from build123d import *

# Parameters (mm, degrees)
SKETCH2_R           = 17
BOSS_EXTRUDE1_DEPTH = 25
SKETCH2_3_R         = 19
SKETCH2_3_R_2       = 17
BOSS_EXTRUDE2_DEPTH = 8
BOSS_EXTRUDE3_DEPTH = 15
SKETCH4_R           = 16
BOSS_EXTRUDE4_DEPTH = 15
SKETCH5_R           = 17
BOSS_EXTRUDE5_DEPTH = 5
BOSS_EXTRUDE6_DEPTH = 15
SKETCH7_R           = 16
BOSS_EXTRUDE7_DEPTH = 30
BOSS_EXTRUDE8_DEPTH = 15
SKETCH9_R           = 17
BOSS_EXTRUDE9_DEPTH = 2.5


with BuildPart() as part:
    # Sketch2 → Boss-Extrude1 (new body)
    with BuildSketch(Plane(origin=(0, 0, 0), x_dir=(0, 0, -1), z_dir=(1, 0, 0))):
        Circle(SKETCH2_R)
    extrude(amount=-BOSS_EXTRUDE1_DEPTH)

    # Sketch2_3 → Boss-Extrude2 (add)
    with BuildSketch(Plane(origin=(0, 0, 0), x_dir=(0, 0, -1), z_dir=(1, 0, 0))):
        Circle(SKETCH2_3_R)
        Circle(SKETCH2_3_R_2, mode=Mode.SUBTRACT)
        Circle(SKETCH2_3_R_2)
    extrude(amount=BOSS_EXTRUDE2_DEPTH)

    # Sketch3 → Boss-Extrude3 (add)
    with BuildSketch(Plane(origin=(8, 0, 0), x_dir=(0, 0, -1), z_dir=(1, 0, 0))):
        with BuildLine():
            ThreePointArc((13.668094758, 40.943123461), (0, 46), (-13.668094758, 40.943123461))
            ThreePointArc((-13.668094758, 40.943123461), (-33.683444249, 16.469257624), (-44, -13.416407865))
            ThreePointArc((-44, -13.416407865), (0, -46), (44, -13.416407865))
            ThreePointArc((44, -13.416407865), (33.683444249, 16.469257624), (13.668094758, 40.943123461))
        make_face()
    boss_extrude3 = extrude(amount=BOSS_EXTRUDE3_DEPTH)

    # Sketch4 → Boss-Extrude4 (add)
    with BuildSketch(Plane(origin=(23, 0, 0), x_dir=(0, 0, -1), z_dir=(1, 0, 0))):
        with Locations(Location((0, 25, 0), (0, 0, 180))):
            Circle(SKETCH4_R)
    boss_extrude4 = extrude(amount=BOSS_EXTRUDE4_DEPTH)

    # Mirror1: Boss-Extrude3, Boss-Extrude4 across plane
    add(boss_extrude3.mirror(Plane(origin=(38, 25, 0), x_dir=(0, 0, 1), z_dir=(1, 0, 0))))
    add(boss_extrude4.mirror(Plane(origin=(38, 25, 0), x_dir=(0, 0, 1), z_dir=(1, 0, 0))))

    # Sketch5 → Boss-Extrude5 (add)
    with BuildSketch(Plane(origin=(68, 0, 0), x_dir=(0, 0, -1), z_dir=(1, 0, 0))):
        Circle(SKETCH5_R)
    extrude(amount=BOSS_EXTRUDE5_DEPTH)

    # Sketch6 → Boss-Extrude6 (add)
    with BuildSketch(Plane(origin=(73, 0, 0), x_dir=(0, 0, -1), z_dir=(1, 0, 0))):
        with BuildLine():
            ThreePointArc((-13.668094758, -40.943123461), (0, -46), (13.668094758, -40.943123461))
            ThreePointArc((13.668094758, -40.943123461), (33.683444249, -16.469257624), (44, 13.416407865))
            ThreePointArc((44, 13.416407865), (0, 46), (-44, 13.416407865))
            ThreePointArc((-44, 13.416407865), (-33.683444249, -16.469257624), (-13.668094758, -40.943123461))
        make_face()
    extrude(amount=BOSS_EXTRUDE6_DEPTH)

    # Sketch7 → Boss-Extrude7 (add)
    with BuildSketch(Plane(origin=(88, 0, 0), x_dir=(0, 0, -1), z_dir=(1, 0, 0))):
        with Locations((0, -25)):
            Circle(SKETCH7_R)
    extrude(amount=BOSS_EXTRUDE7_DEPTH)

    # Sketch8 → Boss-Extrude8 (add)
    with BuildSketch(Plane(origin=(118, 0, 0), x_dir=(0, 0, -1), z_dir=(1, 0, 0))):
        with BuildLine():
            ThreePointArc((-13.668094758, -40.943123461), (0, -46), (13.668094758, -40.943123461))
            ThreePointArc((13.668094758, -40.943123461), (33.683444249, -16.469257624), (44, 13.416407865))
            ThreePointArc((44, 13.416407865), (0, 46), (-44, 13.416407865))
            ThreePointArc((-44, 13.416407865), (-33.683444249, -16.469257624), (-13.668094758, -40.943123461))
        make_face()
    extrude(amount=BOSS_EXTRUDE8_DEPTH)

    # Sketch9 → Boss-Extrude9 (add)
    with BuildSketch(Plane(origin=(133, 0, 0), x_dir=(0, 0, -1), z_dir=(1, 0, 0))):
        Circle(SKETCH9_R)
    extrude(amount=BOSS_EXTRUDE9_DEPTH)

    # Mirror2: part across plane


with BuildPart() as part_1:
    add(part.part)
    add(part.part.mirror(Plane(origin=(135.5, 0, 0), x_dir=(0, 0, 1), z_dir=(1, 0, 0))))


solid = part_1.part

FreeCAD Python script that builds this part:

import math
import FreeCAD as App
import Part
import Sketcher

V = App.Vector

doc = App.newDocument("Part")
body = doc.addObject("PartDesign::Body", "Body")

sketch1 = doc.addObject("Sketcher::SketchObject", "Sketch")
body.addObject(sketch1)
sketch1.AttachmentSupport = (doc.YZ_Plane, [""])
sketch1.MapMode = "FlatFace"
sketch1.addGeometry(Part.Circle(V(0, 0, 0), V(0, 0, 1), 17), False)
sketch1.addConstraint([
    Sketcher.Constraint("Coincident", 0, 3, -1, 1),
    Sketcher.Constraint("Diameter", 0, 34.0),
])
pad1 = doc.addObject("PartDesign::Pad", "Pad")
body.addObject(pad1)
pad1.Profile = sketch1
pad1.Length = 25
pad1.Reversed = True

sketch2 = doc.addObject("Sketcher::SketchObject", "Sketch001")
body.addObject(sketch2)
sketch2.AttachmentSupport = (doc.YZ_Plane, [""])
sketch2.MapMode = "FlatFace"
sketch2.addGeometry(Part.Circle(V(0, 0, 0), V(0, 0, 1), 19), False)
sketch2.addConstraint([
    Sketcher.Constraint("Coincident", 0, 3, -1, 1),
    Sketcher.Constraint("Diameter", 0, 38.0),
])
pad2 = doc.addObject("PartDesign::Pad", "Pad001")
body.addObject(pad2)
pad2.Profile = sketch2
pad2.Length = 8

sketch3 = doc.addObject("Sketcher::SketchObject", "Sketch002")
body.addObject(sketch3)
sketch3.AttachmentSupport = (doc.YZ_Plane, [""])
sketch3.MapMode = "FlatFace"
sketch3.AttachmentOffset = App.Placement(V(0, 0, 8), App.Rotation())
sketch3.addGeometry([
    Part.ArcOfCircle(Part.Circle(V(25, 0, 0), V(0, 0, 1), 21), math.radians(-41), math.radians(41)),
    Part.ArcOfCircle(Part.Circle(V(-27, -45, 0), V(0, 0, 1), 90), math.radians(41), math.radians(81)),
    Part.ArcOfCircle(Part.Circle(V(0, 0, 0), V(0, 0, 1), 46), math.radians(107), math.radians(253)),
    Part.ArcOfCircle(Part.Circle(V(-27, 45, 0), V(0, 0, 1), 90), math.radians(-81), math.radians(-41)),
], False)
sketch3.addConstraint([
    Sketcher.Constraint("Tangent", 0, 2, 1, 1),
    Sketcher.Constraint("Coincident", 1, 2, 2, 1),
    Sketcher.Constraint("Coincident", 2, 2, 3, 1),
    Sketcher.Constraint("Tangent", 3, 2, 0, 1),
    Sketcher.Constraint("Coincident", 2, 3, -1, 1),
    Sketcher.Constraint("Equal", 1, 3),
    Sketcher.Constraint("Symmetric", 1, 3, 3, 3, -1),
    Sketcher.Constraint("Radius", 0, 21.0),
    Sketcher.Constraint("Radius", 1, 90.0),
    Sketcher.Constraint("Radius", 2, 46.0),
    Sketcher.Constraint("DistanceX", -1, 1, 0, 3, 25.0),
    Sketcher.Constraint("DistanceY", -1, 1, 1, 2, 44.0),
])
pad3 = doc.addObject("PartDesign::Pad", "Pad002")
body.addObject(pad3)
pad3.Profile = sketch3
pad3.Length = 15

sketch4 = doc.addObject("Sketcher::SketchObject", "Sketch003")
body.addObject(sketch4)
sketch4.AttachmentSupport = (doc.YZ_Plane, [""])
sketch4.MapMode = "FlatFace"
sketch4.AttachmentOffset = App.Placement(V(0, 0, 23), App.Rotation())
sketch4.addGeometry(Part.Circle(V(25, 0, 0), V(0, 0, 1), 16), False)
sketch4.addConstraint([
    Sketcher.Constraint("PointOnObject", 0, 3, -1),
    Sketcher.Constraint("Diameter", 0, 32.0),
    Sketcher.Constraint("DistanceX", -1, 1, 0, 3, 25.0),
])
pad4 = doc.addObject("PartDesign::Pad", "Pad003")
body.addObject(pad4)
pad4.Profile = sketch4
pad4.Length = 15
doc.recompute()

datumplane = doc.addObject("PartDesign::Plane", "DatumPlane")
body.addObject(datumplane)
datumplane.AttachmentSupport = (doc.YZ_Plane, [""])
datumplane.MapMode = "FlatFace"
datumplane.AttachmentOffset = App.Placement(V(0, 0, 38), App.Rotation())
mirrored = doc.addObject("PartDesign::Mirrored", "Mirrored")
body.addObject(mirrored)
mirrored.Originals = [pad3, pad4]
mirrored.MirrorPlane = (datumplane, [""])
body.Tip = mirrored

sketch5 = doc.addObject("Sketcher::SketchObject", "Sketch004")
body.addObject(sketch5)
sketch5.AttachmentSupport = (doc.YZ_Plane, [""])
sketch5.MapMode = "FlatFace"
sketch5.AttachmentOffset = App.Placement(V(0, 0, 68), App.Rotation())
sketch5.addGeometry(Part.Circle(V(0, 0, 0), V(0, 0, 1), 17), False)
sketch5.addConstraint([
    Sketcher.Constraint("Coincident", 0, 3, -1, 1),
    Sketcher.Constraint("Diameter", 0, 34.0),
])
pad5 = doc.addObject("PartDesign::Pad", "Pad004")
body.addObject(pad5)
pad5.Profile = sketch5
pad5.Length = 5

sketch6 = doc.addObject("Sketcher::SketchObject", "Sketch005")
body.addObject(sketch6)
sketch6.AttachmentSupport = (doc.YZ_Plane, [""])
sketch6.MapMode = "FlatFace"
sketch6.AttachmentOffset = App.Placement(V(0, 0, 73), App.Rotation())
sketch6.addGeometry([
    Part.ArcOfCircle(Part.Circle(V(-25, 0, 0), V(0, 0, 1), 21), math.radians(139), math.radians(221)),
    Part.ArcOfCircle(Part.Circle(V(27, 45, 0), V(0, 0, 1), 90), math.radians(-139), math.radians(-99)),
    Part.ArcOfCircle(Part.Circle(V(0, 0, 0), V(0, 0, 1), 46), math.radians(-73), math.radians(73)),
    Part.ArcOfCircle(Part.Circle(V(27, -45, 0), V(0, 0, 1), 90), math.radians(99), math.radians(139)),
], False)
sketch6.addConstraint([
    Sketcher.Constraint("Tangent", 0, 2, 1, 1),
    Sketcher.Constraint("Coincident", 1, 2, 2, 1),
    Sketcher.Constraint("Coincident", 2, 2, 3, 1),
    Sketcher.Constraint("Tangent", 3, 2, 0, 1),
    Sketcher.Constraint("Coincident", 2, 3, -1, 1),
    Sketcher.Constraint("Equal", 1, 3),
    Sketcher.Constraint("Symmetric", 1, 3, 3, 3, -1),
    Sketcher.Constraint("Radius", 0, 21.0),
    Sketcher.Constraint("Radius", 1, 90.0),
    Sketcher.Constraint("Radius", 2, 46.0),
    Sketcher.Constraint("DistanceX", 0, 3, -1, 1, 25.0),
    Sketcher.Constraint("DistanceY", 1, 2, -1, 1, 44.0),
])
pad6 = doc.addObject("PartDesign::Pad", "Pad005")
body.addObject(pad6)
pad6.Profile = sketch6
pad6.Length = 15

sketch7 = doc.addObject("Sketcher::SketchObject", "Sketch006")
body.addObject(sketch7)
sketch7.AttachmentSupport = (doc.YZ_Plane, [""])
sketch7.MapMode = "FlatFace"
sketch7.AttachmentOffset = App.Placement(V(0, 0, 88), App.Rotation())
sketch7.addGeometry(Part.Circle(V(-25, 0, 0), V(0, 0, 1), 16), False)
sketch7.addConstraint([
    Sketcher.Constraint("PointOnObject", 0, 3, -1),
    Sketcher.Constraint("Diameter", 0, 32.0),
    Sketcher.Constraint("DistanceX", 0, 3, -1, 1, 25.0),
])
pad7 = doc.addObject("PartDesign::Pad", "Pad006")
body.addObject(pad7)
pad7.Profile = sketch7
pad7.Length = 30

sketch8 = doc.addObject("Sketcher::SketchObject", "Sketch007")
body.addObject(sketch8)
sketch8.AttachmentSupport = (doc.YZ_Plane, [""])
sketch8.MapMode = "FlatFace"
sketch8.AttachmentOffset = App.Placement(V(0, 0, 118), App.Rotation())
sketch8.addGeometry([
    Part.ArcOfCircle(Part.Circle(V(-25, 0, 0), V(0, 0, 1), 21), math.radians(139), math.radians(221)),
    Part.ArcOfCircle(Part.Circle(V(27, 45, 0), V(0, 0, 1), 90), math.radians(-139), math.radians(-99)),
    Part.ArcOfCircle(Part.Circle(V(0, 0, 0), V(0, 0, 1), 46), math.radians(-73), math.radians(73)),
    Part.ArcOfCircle(Part.Circle(V(27, -45, 0), V(0, 0, 1), 90), math.radians(99), math.radians(139)),
], False)
sketch8.addConstraint([
    Sketcher.Constraint("Tangent", 0, 2, 1, 1),
    Sketcher.Constraint("Coincident", 1, 2, 2, 1),
    Sketcher.Constraint("Coincident", 2, 2, 3, 1),
    Sketcher.Constraint("Tangent", 3, 2, 0, 1),
    Sketcher.Constraint("Coincident", 2, 3, -1, 1),
    Sketcher.Constraint("Equal", 1, 3),
    Sketcher.Constraint("Symmetric", 1, 3, 3, 3, -1),
    Sketcher.Constraint("Radius", 0, 21.0),
    Sketcher.Constraint("Radius", 1, 90.0),
    Sketcher.Constraint("Radius", 2, 46.0),
    Sketcher.Constraint("DistanceX", 0, 3, -1, 1, 25.0),
    Sketcher.Constraint("DistanceY", 1, 2, -1, 1, 44.0),
])
pad8 = doc.addObject("PartDesign::Pad", "Pad007")
body.addObject(pad8)
pad8.Profile = sketch8
pad8.Length = 15

sketch9 = doc.addObject("Sketcher::SketchObject", "Sketch008")
body.addObject(sketch9)
sketch9.AttachmentSupport = (doc.YZ_Plane, [""])
sketch9.MapMode = "FlatFace"
sketch9.AttachmentOffset = App.Placement(V(0, 0, 133), App.Rotation())
sketch9.addGeometry(Part.Circle(V(0, 0, 0), V(0, 0, 1), 17), False)
sketch9.addConstraint([
    Sketcher.Constraint("Coincident", 0, 3, -1, 1),
    Sketcher.Constraint("Diameter", 0, 34.0),
])
pad9 = doc.addObject("PartDesign::Pad", "Pad008")
body.addObject(pad9)
pad9.Profile = sketch9
pad9.Length = 2.5
body2 = doc.addObject("PartDesign::Body", "Body001")
doc.recompute()

body2.BaseFeature = body
doc.recompute()

mirroring = doc.addObject("Part::Mirroring", "Mirroring")
mirroring.Source = body
mirroring.Base = V(135.5, 0, 0)
mirroring.Normal = V(1, 0, 0)
body3 = doc.addObject("PartDesign::Body", "Body002")
body3.BaseFeature = mirroring
boolean = doc.addObject("PartDesign::Boolean", "Boolean")
body2.addObject(boolean)
boolean.Type = "Fuse"
boolean.addObjects([body3])
doc.recompute()
mirroring.Visibility = False

doc.recompute()
